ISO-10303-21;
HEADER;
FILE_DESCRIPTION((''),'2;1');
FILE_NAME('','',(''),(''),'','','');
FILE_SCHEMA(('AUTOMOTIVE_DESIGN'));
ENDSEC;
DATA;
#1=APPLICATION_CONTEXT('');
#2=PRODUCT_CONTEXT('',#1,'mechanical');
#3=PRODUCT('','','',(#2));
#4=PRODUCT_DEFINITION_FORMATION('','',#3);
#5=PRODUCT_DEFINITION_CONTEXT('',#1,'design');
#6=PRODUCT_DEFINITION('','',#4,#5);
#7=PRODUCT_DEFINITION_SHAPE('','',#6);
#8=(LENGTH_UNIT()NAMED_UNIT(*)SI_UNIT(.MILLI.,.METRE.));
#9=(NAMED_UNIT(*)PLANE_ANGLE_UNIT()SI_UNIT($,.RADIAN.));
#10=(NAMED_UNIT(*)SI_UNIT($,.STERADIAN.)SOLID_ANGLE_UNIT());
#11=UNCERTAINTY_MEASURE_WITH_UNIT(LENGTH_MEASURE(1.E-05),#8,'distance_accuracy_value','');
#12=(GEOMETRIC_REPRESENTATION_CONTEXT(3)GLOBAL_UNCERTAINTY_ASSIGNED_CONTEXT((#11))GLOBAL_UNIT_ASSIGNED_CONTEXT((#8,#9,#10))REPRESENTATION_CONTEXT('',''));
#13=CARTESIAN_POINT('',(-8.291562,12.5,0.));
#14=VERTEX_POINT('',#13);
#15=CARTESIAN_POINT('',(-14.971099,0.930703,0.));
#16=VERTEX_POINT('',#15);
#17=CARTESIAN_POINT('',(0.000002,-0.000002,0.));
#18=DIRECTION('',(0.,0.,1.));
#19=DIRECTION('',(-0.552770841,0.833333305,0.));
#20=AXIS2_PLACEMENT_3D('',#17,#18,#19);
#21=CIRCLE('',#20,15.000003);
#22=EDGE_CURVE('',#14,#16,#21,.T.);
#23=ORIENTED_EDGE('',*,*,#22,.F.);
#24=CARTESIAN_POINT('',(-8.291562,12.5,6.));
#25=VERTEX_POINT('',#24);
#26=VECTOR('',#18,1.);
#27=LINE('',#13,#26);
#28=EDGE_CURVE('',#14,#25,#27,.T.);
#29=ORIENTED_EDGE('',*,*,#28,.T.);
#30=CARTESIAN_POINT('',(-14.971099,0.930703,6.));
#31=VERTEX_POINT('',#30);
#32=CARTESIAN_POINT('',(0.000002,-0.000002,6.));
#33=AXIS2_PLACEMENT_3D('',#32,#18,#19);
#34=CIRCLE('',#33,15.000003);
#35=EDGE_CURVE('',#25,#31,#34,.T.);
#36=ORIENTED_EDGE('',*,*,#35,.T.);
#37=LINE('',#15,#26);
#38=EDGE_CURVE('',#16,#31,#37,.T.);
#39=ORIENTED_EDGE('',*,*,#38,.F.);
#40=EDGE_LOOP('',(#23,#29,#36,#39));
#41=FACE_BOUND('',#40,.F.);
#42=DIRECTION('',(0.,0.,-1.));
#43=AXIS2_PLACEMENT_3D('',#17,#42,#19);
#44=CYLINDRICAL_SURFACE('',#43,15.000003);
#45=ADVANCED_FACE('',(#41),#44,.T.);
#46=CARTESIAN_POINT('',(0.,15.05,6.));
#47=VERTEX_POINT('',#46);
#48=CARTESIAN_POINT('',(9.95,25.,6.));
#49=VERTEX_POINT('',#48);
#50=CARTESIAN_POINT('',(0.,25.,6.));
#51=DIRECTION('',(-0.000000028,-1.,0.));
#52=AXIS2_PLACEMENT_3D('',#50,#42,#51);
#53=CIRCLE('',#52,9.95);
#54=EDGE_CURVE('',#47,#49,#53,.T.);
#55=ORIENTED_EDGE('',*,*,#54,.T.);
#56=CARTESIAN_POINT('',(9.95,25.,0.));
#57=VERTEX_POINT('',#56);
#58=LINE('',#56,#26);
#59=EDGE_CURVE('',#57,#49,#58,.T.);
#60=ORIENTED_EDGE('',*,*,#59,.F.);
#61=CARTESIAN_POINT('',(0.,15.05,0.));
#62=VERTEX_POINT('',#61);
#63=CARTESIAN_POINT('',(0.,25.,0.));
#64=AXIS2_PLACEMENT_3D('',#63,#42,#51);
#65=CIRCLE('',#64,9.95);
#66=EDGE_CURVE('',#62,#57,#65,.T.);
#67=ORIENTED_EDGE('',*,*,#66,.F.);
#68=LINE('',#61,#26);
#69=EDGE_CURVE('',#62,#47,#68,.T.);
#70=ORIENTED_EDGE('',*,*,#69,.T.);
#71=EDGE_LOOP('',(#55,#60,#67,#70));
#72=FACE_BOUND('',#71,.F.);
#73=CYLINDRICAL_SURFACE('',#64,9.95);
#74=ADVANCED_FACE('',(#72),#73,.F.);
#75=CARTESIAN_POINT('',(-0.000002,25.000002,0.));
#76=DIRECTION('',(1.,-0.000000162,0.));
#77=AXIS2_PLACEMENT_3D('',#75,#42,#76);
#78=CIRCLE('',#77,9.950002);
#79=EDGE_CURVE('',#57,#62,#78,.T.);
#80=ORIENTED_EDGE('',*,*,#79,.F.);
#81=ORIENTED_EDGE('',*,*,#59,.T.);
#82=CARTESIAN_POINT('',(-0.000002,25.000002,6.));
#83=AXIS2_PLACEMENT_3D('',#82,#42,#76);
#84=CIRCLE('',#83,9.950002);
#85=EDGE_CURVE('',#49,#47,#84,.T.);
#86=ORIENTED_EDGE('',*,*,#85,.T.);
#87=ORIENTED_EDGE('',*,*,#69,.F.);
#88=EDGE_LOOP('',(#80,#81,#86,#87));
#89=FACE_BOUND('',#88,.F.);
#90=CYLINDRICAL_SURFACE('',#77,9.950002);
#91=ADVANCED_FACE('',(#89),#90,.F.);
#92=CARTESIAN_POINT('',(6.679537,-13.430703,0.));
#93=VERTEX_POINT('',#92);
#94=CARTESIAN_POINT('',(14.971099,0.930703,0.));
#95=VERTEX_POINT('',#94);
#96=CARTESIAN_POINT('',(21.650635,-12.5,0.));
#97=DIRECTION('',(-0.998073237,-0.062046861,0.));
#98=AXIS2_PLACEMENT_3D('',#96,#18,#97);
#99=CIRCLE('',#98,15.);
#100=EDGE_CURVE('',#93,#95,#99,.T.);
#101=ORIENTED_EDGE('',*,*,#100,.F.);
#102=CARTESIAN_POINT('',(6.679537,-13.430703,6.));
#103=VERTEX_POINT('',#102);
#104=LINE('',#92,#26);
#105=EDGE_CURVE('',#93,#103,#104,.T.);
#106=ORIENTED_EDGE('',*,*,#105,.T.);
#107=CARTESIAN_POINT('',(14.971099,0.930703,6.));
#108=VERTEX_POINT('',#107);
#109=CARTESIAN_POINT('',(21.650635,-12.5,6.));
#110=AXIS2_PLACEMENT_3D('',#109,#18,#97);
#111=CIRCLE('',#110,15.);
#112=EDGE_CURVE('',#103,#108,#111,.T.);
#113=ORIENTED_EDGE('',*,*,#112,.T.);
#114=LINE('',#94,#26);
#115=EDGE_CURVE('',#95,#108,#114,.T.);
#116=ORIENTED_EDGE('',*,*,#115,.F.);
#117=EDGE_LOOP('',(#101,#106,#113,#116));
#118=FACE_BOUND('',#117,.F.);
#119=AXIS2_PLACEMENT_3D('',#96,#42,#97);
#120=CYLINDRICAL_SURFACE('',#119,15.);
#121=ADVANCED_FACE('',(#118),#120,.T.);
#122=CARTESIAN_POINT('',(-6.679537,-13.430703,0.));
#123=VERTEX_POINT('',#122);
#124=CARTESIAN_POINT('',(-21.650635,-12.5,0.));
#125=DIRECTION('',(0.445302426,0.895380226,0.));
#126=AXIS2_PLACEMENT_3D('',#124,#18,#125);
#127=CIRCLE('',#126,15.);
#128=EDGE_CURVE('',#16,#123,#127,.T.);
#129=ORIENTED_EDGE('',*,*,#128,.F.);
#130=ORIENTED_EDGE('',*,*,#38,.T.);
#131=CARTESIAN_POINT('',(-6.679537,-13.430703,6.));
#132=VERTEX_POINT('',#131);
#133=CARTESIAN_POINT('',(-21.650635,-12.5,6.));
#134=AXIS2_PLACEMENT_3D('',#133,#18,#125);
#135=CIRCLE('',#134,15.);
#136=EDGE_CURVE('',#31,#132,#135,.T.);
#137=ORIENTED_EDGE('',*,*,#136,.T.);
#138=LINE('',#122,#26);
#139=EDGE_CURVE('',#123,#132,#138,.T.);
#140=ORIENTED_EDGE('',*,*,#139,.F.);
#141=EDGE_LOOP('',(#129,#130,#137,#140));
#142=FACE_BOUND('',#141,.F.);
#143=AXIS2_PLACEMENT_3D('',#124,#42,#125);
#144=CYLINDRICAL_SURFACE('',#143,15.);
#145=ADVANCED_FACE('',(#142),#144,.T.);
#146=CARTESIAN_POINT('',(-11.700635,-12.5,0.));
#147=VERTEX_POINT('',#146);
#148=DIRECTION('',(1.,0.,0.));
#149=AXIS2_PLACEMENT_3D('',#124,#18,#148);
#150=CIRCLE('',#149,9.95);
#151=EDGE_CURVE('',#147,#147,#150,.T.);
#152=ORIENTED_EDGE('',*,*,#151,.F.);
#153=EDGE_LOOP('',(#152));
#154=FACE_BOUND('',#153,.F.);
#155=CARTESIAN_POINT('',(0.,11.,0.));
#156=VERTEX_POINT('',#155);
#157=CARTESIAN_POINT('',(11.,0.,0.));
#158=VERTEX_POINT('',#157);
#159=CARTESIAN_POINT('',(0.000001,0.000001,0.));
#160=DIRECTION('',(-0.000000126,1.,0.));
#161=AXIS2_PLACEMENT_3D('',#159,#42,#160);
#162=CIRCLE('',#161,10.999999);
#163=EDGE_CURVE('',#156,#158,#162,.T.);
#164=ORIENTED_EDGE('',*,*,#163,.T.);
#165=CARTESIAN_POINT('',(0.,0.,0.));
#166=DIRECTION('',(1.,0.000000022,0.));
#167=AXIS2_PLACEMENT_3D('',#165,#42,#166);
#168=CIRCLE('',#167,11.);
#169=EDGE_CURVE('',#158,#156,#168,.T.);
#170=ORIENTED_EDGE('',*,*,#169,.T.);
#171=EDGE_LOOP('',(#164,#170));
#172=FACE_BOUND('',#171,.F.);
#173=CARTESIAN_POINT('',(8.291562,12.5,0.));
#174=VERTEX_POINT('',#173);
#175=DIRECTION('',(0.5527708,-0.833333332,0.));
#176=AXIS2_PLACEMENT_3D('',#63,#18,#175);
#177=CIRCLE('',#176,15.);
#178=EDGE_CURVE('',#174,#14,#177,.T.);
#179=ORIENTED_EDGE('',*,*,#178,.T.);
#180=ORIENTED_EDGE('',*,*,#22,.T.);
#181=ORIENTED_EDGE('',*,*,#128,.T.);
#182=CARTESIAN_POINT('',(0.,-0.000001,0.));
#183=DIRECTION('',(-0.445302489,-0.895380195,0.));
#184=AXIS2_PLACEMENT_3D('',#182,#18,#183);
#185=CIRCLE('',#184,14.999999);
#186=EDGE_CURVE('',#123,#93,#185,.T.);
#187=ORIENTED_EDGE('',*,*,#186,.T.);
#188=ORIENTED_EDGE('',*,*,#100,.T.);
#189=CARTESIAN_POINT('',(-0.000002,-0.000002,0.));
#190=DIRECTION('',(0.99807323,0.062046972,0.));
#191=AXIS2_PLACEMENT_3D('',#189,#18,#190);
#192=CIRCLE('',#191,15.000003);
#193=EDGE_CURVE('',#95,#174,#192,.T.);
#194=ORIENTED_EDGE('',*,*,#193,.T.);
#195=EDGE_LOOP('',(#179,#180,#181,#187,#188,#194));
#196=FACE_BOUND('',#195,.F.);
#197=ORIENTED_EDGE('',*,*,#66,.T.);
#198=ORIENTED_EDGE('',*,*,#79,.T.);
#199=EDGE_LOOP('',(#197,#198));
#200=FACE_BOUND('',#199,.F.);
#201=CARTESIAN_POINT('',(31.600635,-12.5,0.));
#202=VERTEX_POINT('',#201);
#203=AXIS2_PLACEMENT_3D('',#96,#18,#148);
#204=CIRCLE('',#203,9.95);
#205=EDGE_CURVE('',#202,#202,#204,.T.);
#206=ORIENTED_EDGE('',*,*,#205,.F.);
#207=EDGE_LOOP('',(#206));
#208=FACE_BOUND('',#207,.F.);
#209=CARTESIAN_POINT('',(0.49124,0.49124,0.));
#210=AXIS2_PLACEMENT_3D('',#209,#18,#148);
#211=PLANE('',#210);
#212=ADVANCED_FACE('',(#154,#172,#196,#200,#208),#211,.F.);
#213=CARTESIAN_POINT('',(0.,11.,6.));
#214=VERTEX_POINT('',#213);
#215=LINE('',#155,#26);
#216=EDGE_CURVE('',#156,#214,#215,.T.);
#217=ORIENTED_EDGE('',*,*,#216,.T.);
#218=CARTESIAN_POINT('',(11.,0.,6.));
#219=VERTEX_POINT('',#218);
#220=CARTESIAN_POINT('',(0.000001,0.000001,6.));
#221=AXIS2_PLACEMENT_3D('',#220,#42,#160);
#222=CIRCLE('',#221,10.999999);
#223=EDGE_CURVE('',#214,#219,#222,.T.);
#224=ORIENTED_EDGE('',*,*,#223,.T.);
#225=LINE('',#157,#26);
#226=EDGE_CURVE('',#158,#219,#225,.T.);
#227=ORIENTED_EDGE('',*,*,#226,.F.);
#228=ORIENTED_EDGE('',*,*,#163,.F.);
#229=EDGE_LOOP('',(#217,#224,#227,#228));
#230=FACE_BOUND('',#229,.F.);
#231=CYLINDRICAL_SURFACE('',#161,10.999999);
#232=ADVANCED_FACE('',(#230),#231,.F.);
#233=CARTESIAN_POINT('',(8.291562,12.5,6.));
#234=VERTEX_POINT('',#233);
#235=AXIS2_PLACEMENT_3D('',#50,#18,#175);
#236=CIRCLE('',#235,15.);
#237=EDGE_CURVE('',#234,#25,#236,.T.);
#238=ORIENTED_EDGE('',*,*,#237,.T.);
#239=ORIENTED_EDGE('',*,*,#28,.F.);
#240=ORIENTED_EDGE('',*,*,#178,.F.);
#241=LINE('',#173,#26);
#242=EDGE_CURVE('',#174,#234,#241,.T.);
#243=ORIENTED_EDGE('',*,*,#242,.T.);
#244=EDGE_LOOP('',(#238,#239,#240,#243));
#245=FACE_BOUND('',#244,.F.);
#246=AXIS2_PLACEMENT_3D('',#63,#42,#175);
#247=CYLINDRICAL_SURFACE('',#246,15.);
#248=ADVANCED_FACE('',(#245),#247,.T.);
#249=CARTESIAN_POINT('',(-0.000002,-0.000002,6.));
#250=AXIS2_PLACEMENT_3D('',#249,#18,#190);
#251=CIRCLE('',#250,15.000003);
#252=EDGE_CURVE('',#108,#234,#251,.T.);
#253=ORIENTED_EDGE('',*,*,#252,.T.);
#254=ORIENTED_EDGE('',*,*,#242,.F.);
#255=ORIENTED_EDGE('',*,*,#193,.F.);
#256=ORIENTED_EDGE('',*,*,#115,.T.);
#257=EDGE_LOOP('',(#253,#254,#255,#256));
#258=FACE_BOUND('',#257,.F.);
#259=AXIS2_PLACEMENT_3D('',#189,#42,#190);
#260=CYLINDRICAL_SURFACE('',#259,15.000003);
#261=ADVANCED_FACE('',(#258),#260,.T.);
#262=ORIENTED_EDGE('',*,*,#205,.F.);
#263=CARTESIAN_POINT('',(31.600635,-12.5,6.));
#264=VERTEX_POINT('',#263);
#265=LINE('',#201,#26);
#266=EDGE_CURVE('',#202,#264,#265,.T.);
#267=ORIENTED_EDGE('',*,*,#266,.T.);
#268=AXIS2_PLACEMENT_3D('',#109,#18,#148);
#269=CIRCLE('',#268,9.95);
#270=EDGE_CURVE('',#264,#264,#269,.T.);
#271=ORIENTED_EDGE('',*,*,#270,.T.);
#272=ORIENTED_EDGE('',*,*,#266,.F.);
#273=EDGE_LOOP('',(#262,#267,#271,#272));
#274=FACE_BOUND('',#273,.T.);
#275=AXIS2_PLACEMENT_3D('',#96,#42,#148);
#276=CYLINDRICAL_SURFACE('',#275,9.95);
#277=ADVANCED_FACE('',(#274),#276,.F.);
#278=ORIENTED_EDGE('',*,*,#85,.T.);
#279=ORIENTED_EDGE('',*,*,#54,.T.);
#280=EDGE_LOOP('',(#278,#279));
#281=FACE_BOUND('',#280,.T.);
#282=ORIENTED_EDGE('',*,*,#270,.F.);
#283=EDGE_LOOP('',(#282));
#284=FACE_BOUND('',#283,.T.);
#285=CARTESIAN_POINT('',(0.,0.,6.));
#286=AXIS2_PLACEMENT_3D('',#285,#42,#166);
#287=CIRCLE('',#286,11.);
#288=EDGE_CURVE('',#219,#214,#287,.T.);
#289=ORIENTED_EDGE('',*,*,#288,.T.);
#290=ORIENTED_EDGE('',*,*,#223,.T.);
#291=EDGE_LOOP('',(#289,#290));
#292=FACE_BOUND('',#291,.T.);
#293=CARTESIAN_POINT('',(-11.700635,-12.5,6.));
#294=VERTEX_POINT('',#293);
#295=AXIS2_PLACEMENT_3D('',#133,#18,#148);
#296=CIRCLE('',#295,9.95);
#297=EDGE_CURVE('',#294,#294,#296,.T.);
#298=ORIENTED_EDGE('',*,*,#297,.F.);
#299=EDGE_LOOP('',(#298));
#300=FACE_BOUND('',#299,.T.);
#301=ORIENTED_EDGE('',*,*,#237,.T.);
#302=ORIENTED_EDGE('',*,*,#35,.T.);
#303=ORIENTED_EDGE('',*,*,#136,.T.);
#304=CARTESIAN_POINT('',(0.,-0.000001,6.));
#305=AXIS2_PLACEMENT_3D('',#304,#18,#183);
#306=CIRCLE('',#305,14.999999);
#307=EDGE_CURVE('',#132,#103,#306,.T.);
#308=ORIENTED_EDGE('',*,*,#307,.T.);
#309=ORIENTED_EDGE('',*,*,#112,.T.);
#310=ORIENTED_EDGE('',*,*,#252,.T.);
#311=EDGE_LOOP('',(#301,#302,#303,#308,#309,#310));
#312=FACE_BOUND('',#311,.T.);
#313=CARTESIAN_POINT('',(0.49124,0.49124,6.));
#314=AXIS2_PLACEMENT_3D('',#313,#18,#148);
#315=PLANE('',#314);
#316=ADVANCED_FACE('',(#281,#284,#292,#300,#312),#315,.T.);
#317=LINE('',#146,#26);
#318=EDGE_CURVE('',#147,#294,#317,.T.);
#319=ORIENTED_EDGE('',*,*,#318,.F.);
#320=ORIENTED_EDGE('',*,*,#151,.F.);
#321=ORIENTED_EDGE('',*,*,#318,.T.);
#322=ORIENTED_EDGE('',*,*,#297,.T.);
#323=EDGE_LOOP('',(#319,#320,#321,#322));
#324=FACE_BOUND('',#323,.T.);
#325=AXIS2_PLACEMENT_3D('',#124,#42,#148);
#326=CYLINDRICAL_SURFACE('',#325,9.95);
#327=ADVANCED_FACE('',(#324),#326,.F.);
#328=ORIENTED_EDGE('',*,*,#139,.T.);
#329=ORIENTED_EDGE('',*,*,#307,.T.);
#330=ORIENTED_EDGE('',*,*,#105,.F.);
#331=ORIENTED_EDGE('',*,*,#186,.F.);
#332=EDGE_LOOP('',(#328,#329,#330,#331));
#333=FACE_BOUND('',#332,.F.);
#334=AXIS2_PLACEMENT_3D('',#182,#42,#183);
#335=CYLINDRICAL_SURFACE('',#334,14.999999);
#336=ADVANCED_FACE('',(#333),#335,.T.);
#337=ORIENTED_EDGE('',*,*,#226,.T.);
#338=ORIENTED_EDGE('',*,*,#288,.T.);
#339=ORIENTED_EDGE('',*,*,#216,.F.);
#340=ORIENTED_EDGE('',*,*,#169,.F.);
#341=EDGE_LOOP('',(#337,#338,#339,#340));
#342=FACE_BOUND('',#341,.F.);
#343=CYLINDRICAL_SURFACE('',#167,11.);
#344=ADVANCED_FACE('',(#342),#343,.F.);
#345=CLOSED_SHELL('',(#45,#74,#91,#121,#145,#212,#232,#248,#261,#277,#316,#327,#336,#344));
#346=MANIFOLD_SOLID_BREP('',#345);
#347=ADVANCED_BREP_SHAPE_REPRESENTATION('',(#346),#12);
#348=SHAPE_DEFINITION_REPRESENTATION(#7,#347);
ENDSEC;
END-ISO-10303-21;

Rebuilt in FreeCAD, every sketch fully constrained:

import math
import FreeCAD as App
import Part
import Sketcher
from FreeCAD import Vector

doc = App.newDocument("Part")
body = doc.addObject("PartDesign::Body", "Body")

# Sketch on XY plane
sketch1 = body.newObject("Sketcher::SketchObject", "Sketch")
sketch1.AttachmentSupport = (doc.getObject("XY_Plane"), [""])
sketch1.MapMode = "FlatFace"
sketch1.addGeometry([
    Part.ArcOfCircle(Part.Circle(Vector(0, 25, 0), Vector(0, 0, 1), 15), math.radians(-56), math.radians(236)),  # 0
    Part.ArcOfCircle(Part.Circle(Vector(0, 0, 0), Vector(0, 0, 1), 15), math.radians(124), math.radians(176)),  # 1
    Part.ArcOfCircle(Part.Circle(Vector(-22, -13, 0), Vector(0, 0, 1), 15), math.radians(64), math.radians(356)),  # 2
    Part.ArcOfCircle(Part.Circle(Vector(0, 0, 0), Vector(0, 0, 1), 15), math.radians(-116), math.radians(-64)),  # 3
    Part.ArcOfCircle(Part.Circle(Vector(22, -13, 0), Vector(0, 0, 1), 15), math.radians(-176), math.radians(116)),  # 4
    Part.ArcOfCircle(Part.Circle(Vector(0, 0, 0), Vector(0, 0, 1), 15), math.radians(4), math.radians(56)),  # 5
    Part.Circle(Vector(-22, -12, 0), Vector(0, 0, 1), 10),  # 6
    Part.ArcOfCircle(Part.Circle(Vector(0, 0, 0), Vector(0, 0, 1), 11), math.radians(90), math.radians(360)),  # 7
    Part.ArcOfCircle(Part.Circle(Vector(0, 0, 0), Vector(0, 0, 1), 11), math.radians(0), math.radians(90)),  # 8
    Part.Circle(Vector(22, -12, 0), Vector(0, 0, 1), 10),  # 9
    Part.ArcOfCircle(Part.Circle(Vector(0, 25, 0), Vector(0, 0, 1), 10), math.radians(0), math.radians(270)),  # 10
    Part.ArcOfCircle(Part.Circle(Vector(0, 25, 0), Vector(0, 0, 1), 10), math.radians(-90), math.radians(0)),  # 11
], False)
sketch1.addConstraint([
    Sketcher.Constraint("Coincident", 0, 2, 1, 1),
    Sketcher.Constraint("Coincident", 1, 2, 2, 1),
    Sketcher.Constraint("Coincident", 2, 2, 3, 1),
    Sketcher.Constraint("Coincident", 3, 2, 4, 1),
    Sketcher.Constraint("Coincident", 4, 2, 5, 1),
    Sketcher.Constraint("Coincident", 5, 2, 0, 1),
    Sketcher.Constraint("Tangent", 7, 1, 8, 2),
    Sketcher.Constraint("Coincident", 8, 1, 7, 2),
    Sketcher.Constraint("Tangent", 10, 1, 11, 2),
    Sketcher.Constraint("Coincident", 11, 1, 10, 2),
    Sketcher.Constraint("Coincident", 1, 3, -1, 1),
    Sketcher.Constraint("Coincident", 3, 3, -1, 1),
    Sketcher.Constraint("Coincident", 5, 3, -1, 1),
    Sketcher.Constraint("Coincident", 7, 3, -1, 1),
    Sketcher.Constraint("Coincident", 6, 3, 2, 3),
    Sketcher.Constraint("Coincident", 9, 3, 4, 3),
    Sketcher.Constraint("Coincident", 10, 3, 0, 3),
    Sketcher.Constraint("Equal", 0, 2),
    Sketcher.Constraint("Equal", 2, 3),
    Sketcher.Constraint("Equal", 3, 4),
    Sketcher.Constraint("Equal", 1, 5),
    Sketcher.Constraint("Equal", 6, 9),
    Sketcher.Constraint("Equal", 9, 10),
    Sketcher.Constraint("Symmetric", 2, 3, 4, 3, -2),
    Sketcher.Constraint("PointOnObject", 0, 3, -2),
    Sketcher.Constraint("PointOnObject", 7, 1, -2),
    Sketcher.Constraint("PointOnObject", 8, 1, -1),
    Sketcher.Constraint("PointOnObject", 11, 1, -2),
    Sketcher.Constraint("Horizontal", 11, 3, 10, 1),
    Sketcher.Constraint("Radius", 0, 15.0),
    Sketcher.Constraint("Radius", 7, 11.0),
    Sketcher.Constraint("Diameter", 6, 19.9),
    Sketcher.Constraint("DistanceY", -1, 1, 0, 3, 25.0),
    Sketcher.Constraint("DistanceY", 2, 3, -1, 1, 12.5),
    Sketcher.Constraint("DistanceY", -1, 1, 0, 2, 12.5),
    Sketcher.Constraint("DistanceX", 1, 2, -1, 1, 14.971099),
])
pad1 = body.newObject("PartDesign::Pad", "Pad")
pad1.Profile = sketch1
pad1.Length = 6

doc.recompute()
